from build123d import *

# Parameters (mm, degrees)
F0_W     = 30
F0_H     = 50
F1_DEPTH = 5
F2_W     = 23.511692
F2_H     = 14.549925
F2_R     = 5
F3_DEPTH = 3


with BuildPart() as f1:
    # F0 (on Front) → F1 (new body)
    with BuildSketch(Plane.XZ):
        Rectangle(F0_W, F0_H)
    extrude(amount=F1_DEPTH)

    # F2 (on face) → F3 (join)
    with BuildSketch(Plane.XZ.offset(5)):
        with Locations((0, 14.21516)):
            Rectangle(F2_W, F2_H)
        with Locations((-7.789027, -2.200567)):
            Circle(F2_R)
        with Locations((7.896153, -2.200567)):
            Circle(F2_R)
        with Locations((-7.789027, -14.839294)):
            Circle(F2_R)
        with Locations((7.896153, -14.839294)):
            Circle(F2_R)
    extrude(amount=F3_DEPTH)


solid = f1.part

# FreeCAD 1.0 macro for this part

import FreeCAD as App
import Part
import Sketcher
from FreeCAD import Vector
Q = App.Units.Quantity

doc = App.newDocument("Part")
params = doc.addObject("Spreadsheet::Sheet", "Params")
for row, (alias, value) in enumerate([
    ("sketch1_width", "30 mm"),
    ("sketch1_height", "50 mm"),
    ("pad1_length", "5 mm"),
    ("sketch2_diameter", "10 mm"),
    ("pad2_length", "3 mm"),
], start=1):
    params.set(f"A{row}", alias)
    params.set(f"B{row}", "=" + value)
    params.setAlias(f"B{row}", alias)

body = doc.addObject("PartDesign::Body", "Body")

sketch1 = body.newObject("Sketcher::SketchObject", "Sketch")
sketch1.AttachmentSupport = (doc.getObject("XZ_Plane"), [""])
sketch1.MapMode = "FlatFace"
sketch1.addGeometry([
    Part.LineSegment(Vector(-15, 25, 0), Vector(-15, -25, 0)),
    Part.LineSegment(Vector(-15, -25, 0), Vector(15, -25, 0)),
    Part.LineSegment(Vector(15, -25, 0), Vector(15, 25, 0)),
    Part.LineSegment(Vector(15, 25, 0), Vector(-15, 25, 0)),
], False)
sketch1.addConstraint([
    Sketcher.Constraint("Coincident", 0, 2, 1, 1),
    Sketcher.Constraint("Coincident", 1, 2, 2, 1),
    Sketcher.Constraint("Coincident", 2, 2, 3, 1),
    Sketcher.Constraint("Coincident", 3, 2, 0, 1),
    Sketcher.Constraint("Vertical", 0),
    Sketcher.Constraint("Horizontal", 1),
    Sketcher.Constraint("Vertical", 2),
    Sketcher.Constraint("Horizontal", 3),
    Sketcher.Constraint("Symmetric", 0, 2, 2, 2, -1, 1),
    Sketcher.Constraint("DistanceX", 1, 1, 1, 2, Q("30 mm")),
    Sketcher.Constraint("DistanceY", 0, 2, 0, 1, Q("50 mm")),
])
sketch1.setExpression("Constraints[9]", "Params.sketch1_width")
sketch1.setExpression("Constraints[10]", "Params.sketch1_height")
pad1 = body.newObject("PartDesign::Pad", "Pad")
pad1.Profile = sketch1
pad1.setExpression("Length", "Params.pad1_length")

sketch2 = body.newObject("Sketcher::SketchObject", "Sketch001")
sketch2.AttachmentSupport = (doc.getObject("XZ_Plane"), [""])
sketch2.MapMode = "FlatFace"
sketch2.AttachmentOffset = App.Placement(Vector(0, 0, 5), App.Rotation())
sketch2.addGeometry([
    Part.LineSegment(Vector(-12, 21, 0), Vector(-12, 7, 0)),
    Part.LineSegment(Vector(-12, 7, 0), Vector(12, 7, 0)),
    Part.LineSegment(Vector(12, 7, 0), Vector(12, 21, 0)),
    Part.LineSegment(Vector(12, 21, 0), Vector(-12, 21, 0)),
    Part.Circle(Vector(-8, -2, 0), Vector(0, 0, 1), 5),
    Part.Circle(Vector(8, -2, 0), Vector(0, 0, 1), 5),
    Part.Circle(Vector(-8, -15, 0), Vector(0, 0, 1), 5),
    Part.Circle(Vector(8, -15, 0), Vector(0, 0, 1), 5),
], False)
sketch2.addConstraint([
    Sketcher.Constraint("Coincident", 0, 2, 1, 1),
    Sketcher.Constraint("Coincident", 1, 2, 2, 1),
    Sketcher.Constraint("Coincident", 2, 2, 3, 1),
    Sketcher.Constraint("Coincident", 3, 2, 0, 1),
    Sketcher.Constraint("Vertical", 0),
    Sketcher.Constraint("Horizontal", 1),
    Sketcher.Constraint("Vertical", 2),
    Sketcher.Constraint("Horizontal", 3),
    Sketcher.Constraint("Equal", 4, 5),
    Sketcher.Constraint("Equal", 5, 6),
    Sketcher.Constraint("Equal", 6, 7),
    Sketcher.Constraint("Horizontal", 4, 3, 5, 3),
    Sketcher.Constraint("Horizontal", 6, 3, 7, 3),
    Sketcher.Constraint("Vertical", 4, 3, 6, 3),
    Sketcher.Constraint("Vertical", 5, 3, 7, 3),
    Sketcher.Constraint("Diameter", 4, Q("10 mm")),
    Sketcher.Constraint("DistanceX", 0, 2, 5, 3, Q("19.651999 mm")),
    Sketcher.Constraint("DistanceX", 1, 1, 1, 2, Q("23.511692 mm")),
    Sketcher.Constraint("DistanceY", 0, 2, 0, 1, Q("14.549925 mm")),
    Sketcher.Constraint("DistanceX", 4, 3, 5, 3, Q("15.68518 mm")),
    Sketcher.Constraint("DistanceY", 6, 3, 0, 2, Q("21.779491 mm")),
    Sketcher.Constraint("DistanceY", 5, 3, 2, 2, Q("23.690689 mm")),
    Sketcher.Constraint("DistanceX", 4, 3, -1, 1, Q("7.789027 mm")),
    Sketcher.Constraint("DistanceY", 4, 3, -1, 1, Q("2.200567 mm")),
])
sketch2.setExpression("Constraints[15]", "Params.sketch2_diameter")
pad2 = body.newObject("PartDesign::Pad", "Pad001")
pad2.Profile = sketch2
pad2.setExpression("Length", "Params.pad2_length")

doc.recompute()
